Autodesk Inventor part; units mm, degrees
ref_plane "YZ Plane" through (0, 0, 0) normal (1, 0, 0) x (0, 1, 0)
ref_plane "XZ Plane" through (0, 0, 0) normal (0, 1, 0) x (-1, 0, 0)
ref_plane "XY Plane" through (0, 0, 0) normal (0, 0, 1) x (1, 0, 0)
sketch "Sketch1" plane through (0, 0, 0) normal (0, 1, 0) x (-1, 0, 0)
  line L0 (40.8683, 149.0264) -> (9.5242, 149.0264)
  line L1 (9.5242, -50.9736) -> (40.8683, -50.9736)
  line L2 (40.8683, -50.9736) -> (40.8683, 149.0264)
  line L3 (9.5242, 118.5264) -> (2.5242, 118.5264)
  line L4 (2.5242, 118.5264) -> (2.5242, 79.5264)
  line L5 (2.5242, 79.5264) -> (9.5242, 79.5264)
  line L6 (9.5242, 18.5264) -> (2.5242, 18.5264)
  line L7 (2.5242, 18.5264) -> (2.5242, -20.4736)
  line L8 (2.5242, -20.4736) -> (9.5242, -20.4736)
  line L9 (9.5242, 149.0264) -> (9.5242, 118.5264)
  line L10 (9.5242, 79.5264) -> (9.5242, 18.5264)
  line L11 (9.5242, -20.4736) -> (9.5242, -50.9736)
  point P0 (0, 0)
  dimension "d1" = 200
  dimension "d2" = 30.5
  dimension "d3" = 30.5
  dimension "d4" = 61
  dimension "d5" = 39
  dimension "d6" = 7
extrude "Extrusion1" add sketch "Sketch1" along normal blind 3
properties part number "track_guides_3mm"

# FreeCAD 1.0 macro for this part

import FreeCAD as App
import Part
import Sketcher


def add_polygon(sketch, points):
    """Adds a closed chain of lines whose ends are joined by coincident constraints."""
    first, n = sketch.GeometryCount, len(points)
    for a, b in zip(points, points[1:] + points[:1]):
        sketch.addGeometry(Part.LineSegment(App.Vector(*a, 0), App.Vector(*b, 0)), False)
    for i in range(n):
        sketch.addConstraint(Sketcher.Constraint("Coincident", first + i, 2, first + (i + 1) % n, 1))

doc = App.newDocument("Part")
params = doc.addObject("Spreadsheet::Sheet", "Params")
for row, (alias, value) in enumerate([
    ("sketch1_width", "7 mm"),
    ("sketch1_height", "200 mm"),
    ("sketch1_height2", "39 mm"),
    ("sketch1_height3", "61 mm"),
    ("pad1_length", "3 mm"),
], start=1):
    params.set(f"A{row}", alias)
    params.set(f"B{row}", "=" + value)
    params.setAlias(f"B{row}", alias)

body = doc.addObject("PartDesign::Body", "Body")

sketch1 = body.newObject("Sketcher::SketchObject", "Sketch")
sketch1.AttachmentSupport = (doc.getObject("XZ_Plane"), [""])
sketch1.MapMode = "FlatFace"
add_polygon(sketch1, [(-40.8683, -50.9736), (-40.8683, 149.0264), (-9.5242, 149.0264), (-9.5242, 118.5264), (-2.5242, 118.5264), (-2.5242, 79.5264), (-9.5242, 79.5264), (-9.5242, 18.5264), (-2.5242, 18.5264), (-2.5242, -20.4736), (-9.5242, -20.4736), (-9.5242, -50.9736)])
sketch1.addConstraint([
    Sketcher.Constraint("Vertical", 0),
    Sketcher.Constraint("Horizontal", 1),
    Sketcher.Constraint("Vertical", 2),
    Sketcher.Constraint("Horizontal", 3),
    Sketcher.Constraint("Vertical", 4),
    Sketcher.Constraint("Horizontal", 5),
    Sketcher.Constraint("Vertical", 6),
    Sketcher.Constraint("Horizontal", 7),
    Sketcher.Constraint("Vertical", 8),
    Sketcher.Constraint("Horizontal", 9),
    Sketcher.Constraint("Vertical", 10),
    Sketcher.Constraint("Horizontal", 11),
    Sketcher.Constraint("Vertical", 2, 2, 5, 2),
    Sketcher.Constraint("Vertical", 4, 2, 7, 2),
    Sketcher.Constraint("Vertical", 6, 2, 9, 2),
    Sketcher.Constraint("Equal", 4, 8),
    Sketcher.Constraint("Equal", 2, 10),
    Sketcher.Constraint("DistanceX", 3, 1, 3, 2, 7.0),
    Sketcher.Constraint("DistanceY", 0, 1, 0, 2, 200.0),
    Sketcher.Constraint("DistanceY", 4, 2, 4, 1, 39.0),
    Sketcher.Constraint("DistanceY", 6, 2, 6, 1, 61.0),
    Sketcher.Constraint("DistanceX", 1, 1, 1, 2, 31.344),
    Sketcher.Constraint("DistanceX", 0, 2, -1, 1, 40.8683),
    Sketcher.Constraint("DistanceY", -1, 1, 0, 2, 149.0264),
])
sketch1.setExpression("Constraints[29]", "Params.sketch1_width")
sketch1.setExpression("Constraints[30]", "Params.sketch1_height")
sketch1.setExpression("Constraints[31]", "Params.sketch1_height2")
sketch1.setExpression("Constraints[32]", "Params.sketch1_height3")
pad1 = body.newObject("PartDesign::Pad", "Pad")
pad1.Profile = sketch1
pad1.setExpression("Length", "Params.pad1_length")
pad1.Reversed = True

doc.recompute()
